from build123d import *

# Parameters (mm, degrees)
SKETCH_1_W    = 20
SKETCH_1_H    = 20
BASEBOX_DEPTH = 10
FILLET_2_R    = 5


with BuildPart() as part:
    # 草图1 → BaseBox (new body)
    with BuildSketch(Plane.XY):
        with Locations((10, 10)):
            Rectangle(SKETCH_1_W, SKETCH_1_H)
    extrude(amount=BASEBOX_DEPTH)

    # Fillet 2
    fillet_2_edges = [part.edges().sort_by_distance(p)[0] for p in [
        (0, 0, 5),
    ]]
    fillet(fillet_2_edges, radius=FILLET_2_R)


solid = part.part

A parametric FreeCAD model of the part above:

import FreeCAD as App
import Part
import Sketcher

V = App.Vector


def edges_at(feature, points):
    """Names of the edges that pass closest to the given points."""
    edges = feature.Shape.Edges
    near = lambda p: min(range(len(edges)), key=lambda i: edges[i].distToShape(Part.Vertex(*p))[0])
    return sorted({f"Edge{near(p) + 1}" for p in points})


def add_polygon(sketch, points):
    """Adds a closed chain of lines whose ends are joined by coincident constraints."""
    first, n = sketch.GeometryCount, len(points)
    for a, b in zip(points, points[1:] + points[:1]):
        sketch.addGeometry(Part.LineSegment(App.Vector(*a, 0), App.Vector(*b, 0)), False)
    for i in range(n):
        sketch.addConstraint(Sketcher.Constraint("Coincident", first + i, 2, first + (i + 1) % n, 1))

doc = App.newDocument("Part")
body = doc.addObject("PartDesign::Body", "Body")

# Sketch on XY plane
sketch1 = body.newObject("Sketcher::SketchObject", "Sketch")
sketch1.AttachmentSupport = (doc.getObject("XY_Plane"), [""])
sketch1.MapMode = "FlatFace"
add_polygon(sketch1, [(0, 20), (0, 0), (20, 0), (20, 20)])  # lines 0-3
sketch1.addConstraint(Sketcher.Constraint("Vertical", 0))
sketch1.addConstraint(Sketcher.Constraint("Horizontal", 1))
sketch1.addConstraint(Sketcher.Constraint("Vertical", 2))
sketch1.addConstraint(Sketcher.Constraint("Horizontal", 3))
sketch1.addConstraint(Sketcher.Constraint("Coincident", 0, 2, -1, 1))
sketch1.addConstraint(Sketcher.Constraint("Equal", 3, 0))
sketch1.addConstraint(Sketcher.Constraint("DistanceX", 1, 1, 1, 2, 20.0))
pad1 = body.newObject("PartDesign::Pad", "Pad")
pad1.Profile = sketch1
pad1.Length = 10
doc.recompute()

fillet = body.newObject("PartDesign::Fillet", "Fillet")
fillet.Base = (pad1, edges_at(pad1, [(0, 0, 5)]))
fillet.Radius = 5

doc.recompute()
